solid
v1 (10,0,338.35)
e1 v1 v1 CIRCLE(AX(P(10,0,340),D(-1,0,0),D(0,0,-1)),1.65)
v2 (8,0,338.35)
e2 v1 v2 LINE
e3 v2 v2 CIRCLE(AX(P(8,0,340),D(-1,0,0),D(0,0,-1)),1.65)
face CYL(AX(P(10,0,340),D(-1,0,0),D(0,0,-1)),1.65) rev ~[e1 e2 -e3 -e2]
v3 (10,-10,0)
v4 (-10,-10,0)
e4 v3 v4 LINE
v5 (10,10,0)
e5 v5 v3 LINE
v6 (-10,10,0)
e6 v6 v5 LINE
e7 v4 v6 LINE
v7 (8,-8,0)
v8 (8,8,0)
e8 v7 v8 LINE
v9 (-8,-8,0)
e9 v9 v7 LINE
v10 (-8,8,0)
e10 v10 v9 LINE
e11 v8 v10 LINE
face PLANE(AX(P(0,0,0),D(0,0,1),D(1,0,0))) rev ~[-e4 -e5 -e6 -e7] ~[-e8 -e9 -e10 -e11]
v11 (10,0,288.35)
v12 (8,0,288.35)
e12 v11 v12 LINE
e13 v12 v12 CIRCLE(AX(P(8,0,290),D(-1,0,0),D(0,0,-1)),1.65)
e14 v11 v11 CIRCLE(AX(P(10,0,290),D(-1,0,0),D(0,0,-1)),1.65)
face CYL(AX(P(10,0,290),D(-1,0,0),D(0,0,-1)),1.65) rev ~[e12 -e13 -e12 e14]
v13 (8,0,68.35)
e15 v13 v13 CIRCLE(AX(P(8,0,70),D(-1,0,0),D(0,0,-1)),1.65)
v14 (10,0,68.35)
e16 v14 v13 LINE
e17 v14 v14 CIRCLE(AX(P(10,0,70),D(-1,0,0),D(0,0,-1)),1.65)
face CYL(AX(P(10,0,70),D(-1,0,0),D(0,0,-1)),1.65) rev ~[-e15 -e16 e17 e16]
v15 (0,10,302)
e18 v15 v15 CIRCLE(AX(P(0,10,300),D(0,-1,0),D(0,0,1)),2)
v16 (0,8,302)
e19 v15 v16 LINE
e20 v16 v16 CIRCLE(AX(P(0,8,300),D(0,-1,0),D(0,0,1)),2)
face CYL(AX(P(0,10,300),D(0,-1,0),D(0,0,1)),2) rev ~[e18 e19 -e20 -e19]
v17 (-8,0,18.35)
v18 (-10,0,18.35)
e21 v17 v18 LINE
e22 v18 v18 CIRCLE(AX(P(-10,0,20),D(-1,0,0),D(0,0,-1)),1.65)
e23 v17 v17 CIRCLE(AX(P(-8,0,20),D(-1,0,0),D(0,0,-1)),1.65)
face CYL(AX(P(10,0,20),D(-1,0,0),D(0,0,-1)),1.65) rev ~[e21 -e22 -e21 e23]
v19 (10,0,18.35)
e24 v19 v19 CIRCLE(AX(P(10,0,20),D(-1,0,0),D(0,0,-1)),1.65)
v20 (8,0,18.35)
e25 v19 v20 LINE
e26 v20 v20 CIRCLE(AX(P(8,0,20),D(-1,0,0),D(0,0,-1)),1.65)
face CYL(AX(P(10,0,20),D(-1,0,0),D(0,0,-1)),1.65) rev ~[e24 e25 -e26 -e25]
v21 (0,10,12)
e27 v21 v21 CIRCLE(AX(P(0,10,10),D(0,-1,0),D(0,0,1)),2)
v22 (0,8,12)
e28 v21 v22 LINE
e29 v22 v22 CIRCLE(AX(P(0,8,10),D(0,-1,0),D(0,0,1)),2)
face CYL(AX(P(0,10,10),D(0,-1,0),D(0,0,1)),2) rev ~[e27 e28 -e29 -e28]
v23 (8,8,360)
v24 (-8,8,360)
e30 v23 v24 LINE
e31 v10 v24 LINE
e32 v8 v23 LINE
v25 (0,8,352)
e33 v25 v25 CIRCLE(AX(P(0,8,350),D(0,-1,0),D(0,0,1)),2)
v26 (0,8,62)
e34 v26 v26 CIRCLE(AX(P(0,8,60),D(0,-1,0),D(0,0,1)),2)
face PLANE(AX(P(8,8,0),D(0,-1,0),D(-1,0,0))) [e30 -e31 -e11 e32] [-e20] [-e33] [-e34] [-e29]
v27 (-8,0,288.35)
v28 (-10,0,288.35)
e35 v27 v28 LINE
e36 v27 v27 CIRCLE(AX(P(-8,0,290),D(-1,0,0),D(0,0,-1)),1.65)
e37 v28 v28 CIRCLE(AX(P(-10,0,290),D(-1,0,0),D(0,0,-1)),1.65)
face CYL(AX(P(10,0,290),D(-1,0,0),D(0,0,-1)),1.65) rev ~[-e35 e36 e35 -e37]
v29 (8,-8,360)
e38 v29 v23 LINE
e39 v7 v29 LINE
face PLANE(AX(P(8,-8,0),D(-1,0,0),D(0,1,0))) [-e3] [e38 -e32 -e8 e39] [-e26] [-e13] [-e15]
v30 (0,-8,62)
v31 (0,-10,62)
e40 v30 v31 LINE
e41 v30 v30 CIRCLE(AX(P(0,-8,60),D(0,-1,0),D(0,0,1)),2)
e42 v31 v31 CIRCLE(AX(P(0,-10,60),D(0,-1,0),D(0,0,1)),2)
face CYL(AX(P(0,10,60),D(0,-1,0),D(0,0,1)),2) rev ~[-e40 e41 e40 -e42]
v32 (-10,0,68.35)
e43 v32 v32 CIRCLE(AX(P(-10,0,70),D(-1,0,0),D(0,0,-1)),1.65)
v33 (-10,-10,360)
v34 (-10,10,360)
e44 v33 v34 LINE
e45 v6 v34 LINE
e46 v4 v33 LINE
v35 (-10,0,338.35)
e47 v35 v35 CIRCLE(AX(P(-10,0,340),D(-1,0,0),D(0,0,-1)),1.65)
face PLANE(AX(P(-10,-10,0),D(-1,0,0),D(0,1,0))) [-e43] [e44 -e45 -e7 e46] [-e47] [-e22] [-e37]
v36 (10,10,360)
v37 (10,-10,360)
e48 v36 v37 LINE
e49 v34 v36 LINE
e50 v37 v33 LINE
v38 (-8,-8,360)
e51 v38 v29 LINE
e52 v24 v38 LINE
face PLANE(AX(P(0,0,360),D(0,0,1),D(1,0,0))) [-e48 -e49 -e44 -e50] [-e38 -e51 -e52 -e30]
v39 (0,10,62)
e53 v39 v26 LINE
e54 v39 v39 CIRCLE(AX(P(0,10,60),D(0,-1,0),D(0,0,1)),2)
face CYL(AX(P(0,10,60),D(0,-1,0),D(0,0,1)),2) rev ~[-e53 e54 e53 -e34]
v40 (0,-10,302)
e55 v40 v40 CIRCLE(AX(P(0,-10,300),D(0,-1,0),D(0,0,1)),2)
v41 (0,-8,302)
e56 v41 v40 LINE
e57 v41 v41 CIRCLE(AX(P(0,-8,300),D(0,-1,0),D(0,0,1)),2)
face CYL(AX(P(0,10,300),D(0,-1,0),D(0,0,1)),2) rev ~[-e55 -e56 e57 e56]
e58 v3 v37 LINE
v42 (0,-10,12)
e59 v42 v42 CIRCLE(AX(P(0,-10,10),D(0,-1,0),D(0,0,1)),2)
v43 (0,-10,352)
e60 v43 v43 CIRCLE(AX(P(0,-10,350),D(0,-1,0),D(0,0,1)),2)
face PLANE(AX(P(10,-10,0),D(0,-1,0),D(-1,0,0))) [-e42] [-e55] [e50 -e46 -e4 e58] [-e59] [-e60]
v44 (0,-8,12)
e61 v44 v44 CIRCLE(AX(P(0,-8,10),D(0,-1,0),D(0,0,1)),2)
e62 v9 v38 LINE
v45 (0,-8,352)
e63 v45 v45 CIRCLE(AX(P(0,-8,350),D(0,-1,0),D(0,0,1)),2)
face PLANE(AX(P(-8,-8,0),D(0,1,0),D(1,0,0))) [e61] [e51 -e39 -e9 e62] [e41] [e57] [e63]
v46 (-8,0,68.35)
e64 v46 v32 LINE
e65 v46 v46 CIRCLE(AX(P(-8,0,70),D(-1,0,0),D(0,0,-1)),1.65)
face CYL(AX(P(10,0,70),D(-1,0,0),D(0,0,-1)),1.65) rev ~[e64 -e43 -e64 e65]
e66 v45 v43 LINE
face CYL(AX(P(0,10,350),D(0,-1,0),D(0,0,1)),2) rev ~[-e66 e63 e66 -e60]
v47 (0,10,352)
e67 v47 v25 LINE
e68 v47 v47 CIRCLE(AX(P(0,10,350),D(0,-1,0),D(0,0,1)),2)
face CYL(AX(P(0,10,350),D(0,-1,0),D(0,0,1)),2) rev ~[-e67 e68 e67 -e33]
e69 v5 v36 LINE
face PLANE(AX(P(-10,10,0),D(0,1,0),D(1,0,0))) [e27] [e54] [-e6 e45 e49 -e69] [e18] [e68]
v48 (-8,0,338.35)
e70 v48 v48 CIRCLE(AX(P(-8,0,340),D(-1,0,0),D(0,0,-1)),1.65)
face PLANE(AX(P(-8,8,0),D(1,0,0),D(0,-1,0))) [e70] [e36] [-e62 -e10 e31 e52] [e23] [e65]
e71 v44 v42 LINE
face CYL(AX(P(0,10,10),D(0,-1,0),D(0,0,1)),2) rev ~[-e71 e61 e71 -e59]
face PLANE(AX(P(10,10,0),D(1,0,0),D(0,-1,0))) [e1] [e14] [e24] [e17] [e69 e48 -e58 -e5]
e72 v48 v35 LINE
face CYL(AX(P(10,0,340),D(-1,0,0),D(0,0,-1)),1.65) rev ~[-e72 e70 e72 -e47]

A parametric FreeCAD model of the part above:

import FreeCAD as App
import Part
import Sketcher
Q = App.Units.Quantity

doc = App.newDocument("Part")
params = doc.addObject("Spreadsheet::Sheet", "Params")
for row, (alias, value) in enumerate([
    ("sketch1_width", "20 mm"),
    ("pad1_length", "360 mm"),
    ("sketch2_diameter", "4 mm"),
    ("hole_diameter", "4 mm"),
    ("sketch3_diameter", "3.3 mm"),
    ("hole2_diameter", "3.3 mm"),
], start=1):
    params.set(f"A{row}", alias)
    params.set(f"B{row}", "=" + value)
    params.setAlias(f"B{row}", alias)

body = doc.addObject("PartDesign::Body", "Body")

sketch1 = body.newObject("Sketcher::SketchObject", "Sketch")
sketch1.AttachmentSupport = (doc.getObject("XY_Plane"), [""])
sketch1.MapMode = "FlatFace"
sketch1.addGeometry(Part.LineSegment(App.Vector(-10, -10, 0), App.Vector(10, -10, 0)), False)
sketch1.addGeometry(Part.LineSegment(App.Vector(10, -10, 0), App.Vector(10, 10, 0)), False)
sketch1.addGeometry(Part.LineSegment(App.Vector(10, 10, 0), App.Vector(-10, 10, 0)), False)
sketch1.addGeometry(Part.LineSegment(App.Vector(-10, 10, 0), App.Vector(-10, -10, 0)), False)
sketch1.addGeometry(Part.LineSegment(App.Vector(-8, 8, 0), App.Vector(8, 8, 0)), False)
sketch1.addGeometry(Part.LineSegment(App.Vector(8, 8, 0), App.Vector(8, -8, 0)), False)
sketch1.addGeometry(Part.LineSegment(App.Vector(8, -8, 0), App.Vector(-8, -8, 0)), False)
sketch1.addGeometry(Part.LineSegment(App.Vector(-8, -8, 0), App.Vector(-8, 8, 0)), False)
sketch1.addConstraint(Sketcher.Constraint("Coincident", 0, 2, 1, 1))
sketch1.addConstraint(Sketcher.Constraint("Coincident", 1, 2, 2, 1))
sketch1.addConstraint(Sketcher.Constraint("Coincident", 2, 2, 3, 1))
sketch1.addConstraint(Sketcher.Constraint("Coincident", 3, 2, 0, 1))
sketch1.addConstraint(Sketcher.Constraint("Coincident", 4, 2, 5, 1))
sketch1.addConstraint(Sketcher.Constraint("Coincident", 5, 2, 6, 1))
sketch1.addConstraint(Sketcher.Constraint("Coincident", 6, 2, 7, 1))
sketch1.addConstraint(Sketcher.Constraint("Coincident", 7, 2, 4, 1))
sketch1.addConstraint(Sketcher.Constraint("Horizontal", 0))
sketch1.addConstraint(Sketcher.Constraint("Vertical", 1))
sketch1.addConstraint(Sketcher.Constraint("Horizontal", 2))
sketch1.addConstraint(Sketcher.Constraint("Vertical", 3))
sketch1.addConstraint(Sketcher.Constraint("Horizontal", 4))
sketch1.addConstraint(Sketcher.Constraint("Vertical", 5))
sketch1.addConstraint(Sketcher.Constraint("Horizontal", 6))
sketch1.addConstraint(Sketcher.Constraint("Vertical", 7))
sketch1.addConstraint(Sketcher.Constraint("Symmetric", 0, 2, 2, 2, -1, 1))
sketch1.addConstraint(Sketcher.Constraint("Symmetric", 4, 2, 6, 2, -1, 1))
sketch1.addConstraint(Sketcher.Constraint("Equal", 2, 1))
sketch1.addConstraint(Sketcher.Constraint("Equal", 6, 5))
sketch1.addConstraint(Sketcher.Constraint("DistanceX", 0, 1, 0, 2, Q("20 mm")))
sketch1.addConstraint(Sketcher.Constraint("DistanceX", 4, 2, 1, 2, Q("2 mm")))
sketch1.setExpression("Constraints[20]", "Params.sketch1_width")
pad1 = body.newObject("PartDesign::Pad", "Pad")
pad1.Profile = sketch1
pad1.setExpression("Length", "Params.pad1_length")

sketch2 = body.newObject("Sketcher::SketchObject", "Sketch001")
sketch2.AttachmentSupport = (doc.getObject("XZ_Plane"), [""])
sketch2.MapMode = "FlatFace"
sketch2.AttachmentOffset = App.Placement(App.Vector(0, 0, -10), App.Rotation())
sketch2.addGeometry(Part.Circle(App.Vector(0, 350, 0), App.Vector(0, 0, 1), 2), False)
sketch2.addGeometry(Part.Circle(App.Vector(0, 300, 0), App.Vector(0, 0, 1), 2), False)
sketch2.addGeometry(Part.Circle(App.Vector(0, 60, 0), App.Vector(0, 0, 1), 2), False)
sketch2.addGeometry(Part.Circle(App.Vector(0, 10, 0), App.Vector(0, 0, 1), 2), False)
sketch2.addConstraint(Sketcher.Constraint("Equal", 0, 1))
sketch2.addConstraint(Sketcher.Constraint("Equal", 1, 2))
sketch2.addConstraint(Sketcher.Constraint("Equal", 2, 3))
sketch2.addConstraint(Sketcher.Constraint("PointOnObject", 0, 3, -2))
sketch2.addConstraint(Sketcher.Constraint("PointOnObject", 1, 3, -2))
sketch2.addConstraint(Sketcher.Constraint("PointOnObject", 2, 3, -2))
sketch2.addConstraint(Sketcher.Constraint("PointOnObject", 3, 3, -2))
sketch2.addConstraint(Sketcher.Constraint("Diameter", 0, Q("4 mm")))
sketch2.addConstraint(Sketcher.Constraint("DistanceY", -1, 1, 0, 3, Q("350 mm")))
sketch2.addConstraint(Sketcher.Constraint("DistanceY", -1, 1, 1, 3, Q("300 mm")))
sketch2.addConstraint(Sketcher.Constraint("DistanceY", -1, 1, 2, 3, Q("60 mm")))
sketch2.addConstraint(Sketcher.Constraint("DistanceY", -1, 1, 3, 3, Q("10 mm")))
sketch2.setExpression("Constraints[7]", "Params.sketch2_diameter")
doc.recompute()
hole = body.newObject("PartDesign::Hole", "Hole")
hole.Profile = sketch2
hole.ThreadType = "None"
hole.setExpression("Diameter", "Params.hole_diameter")
hole.DepthType = "ThroughAll"
hole.Reversed = True

sketch3 = body.newObject("Sketcher::SketchObject", "Sketch002")
sketch3.AttachmentSupport = (doc.getObject("YZ_Plane"), [""])
sketch3.MapMode = "FlatFace"
sketch3.AttachmentOffset = App.Placement(App.Vector(0, 0, 10), App.Rotation())
sketch3.addGeometry(Part.Circle(App.Vector(0, 340, 0), App.Vector(0, 0, 1), 1.6), False)
sketch3.addGeometry(Part.Circle(App.Vector(0, 290, 0), App.Vector(0, 0, 1), 1.6), False)
sketch3.addGeometry(Part.Circle(App.Vector(0, 20, 0), App.Vector(0, 0, 1), 1.6), False)
sketch3.addGeometry(Part.Circle(App.Vector(0, 70, 0), App.Vector(0, 0, 1), 1.6), False)
sketch3.addConstraint(Sketcher.Constraint("Equal", 0, 1))
sketch3.addConstraint(Sketcher.Constraint("Equal", 1, 2))
sketch3.addConstraint(Sketcher.Constraint("Equal", 2, 3))
sketch3.addConstraint(Sketcher.Constraint("PointOnObject", 0, 3, -2))
sketch3.addConstraint(Sketcher.Constraint("PointOnObject", 1, 3, -2))
sketch3.addConstraint(Sketcher.Constraint("PointOnObject", 2, 3, -2))
sketch3.addConstraint(Sketcher.Constraint("PointOnObject", 3, 3, -2))
sketch3.addConstraint(Sketcher.Constraint("Diameter", 0, Q("3.3 mm")))
sketch3.addConstraint(Sketcher.Constraint("DistanceY", -1, 1, 0, 3, Q("340 mm")))
sketch3.addConstraint(Sketcher.Constraint("DistanceY", -1, 1, 1, 3, Q("290 mm")))
sketch3.addConstraint(Sketcher.Constraint("DistanceY", -1, 1, 2, 3, Q("20 mm")))
sketch3.addConstraint(Sketcher.Constraint("DistanceY", -1, 1, 3, 3, Q("70 mm")))
sketch3.setExpression("Constraints[7]", "Params.sketch3_diameter")
doc.recompute()
hole2 = body.newObject("PartDesign::Hole", "Hole001")
hole2.Profile = sketch3
hole2.ThreadType = "None"
hole2.setExpression("Diameter", "Params.hole2_diameter")
hole2.DepthType = "ThroughAll"

doc.recompute()
